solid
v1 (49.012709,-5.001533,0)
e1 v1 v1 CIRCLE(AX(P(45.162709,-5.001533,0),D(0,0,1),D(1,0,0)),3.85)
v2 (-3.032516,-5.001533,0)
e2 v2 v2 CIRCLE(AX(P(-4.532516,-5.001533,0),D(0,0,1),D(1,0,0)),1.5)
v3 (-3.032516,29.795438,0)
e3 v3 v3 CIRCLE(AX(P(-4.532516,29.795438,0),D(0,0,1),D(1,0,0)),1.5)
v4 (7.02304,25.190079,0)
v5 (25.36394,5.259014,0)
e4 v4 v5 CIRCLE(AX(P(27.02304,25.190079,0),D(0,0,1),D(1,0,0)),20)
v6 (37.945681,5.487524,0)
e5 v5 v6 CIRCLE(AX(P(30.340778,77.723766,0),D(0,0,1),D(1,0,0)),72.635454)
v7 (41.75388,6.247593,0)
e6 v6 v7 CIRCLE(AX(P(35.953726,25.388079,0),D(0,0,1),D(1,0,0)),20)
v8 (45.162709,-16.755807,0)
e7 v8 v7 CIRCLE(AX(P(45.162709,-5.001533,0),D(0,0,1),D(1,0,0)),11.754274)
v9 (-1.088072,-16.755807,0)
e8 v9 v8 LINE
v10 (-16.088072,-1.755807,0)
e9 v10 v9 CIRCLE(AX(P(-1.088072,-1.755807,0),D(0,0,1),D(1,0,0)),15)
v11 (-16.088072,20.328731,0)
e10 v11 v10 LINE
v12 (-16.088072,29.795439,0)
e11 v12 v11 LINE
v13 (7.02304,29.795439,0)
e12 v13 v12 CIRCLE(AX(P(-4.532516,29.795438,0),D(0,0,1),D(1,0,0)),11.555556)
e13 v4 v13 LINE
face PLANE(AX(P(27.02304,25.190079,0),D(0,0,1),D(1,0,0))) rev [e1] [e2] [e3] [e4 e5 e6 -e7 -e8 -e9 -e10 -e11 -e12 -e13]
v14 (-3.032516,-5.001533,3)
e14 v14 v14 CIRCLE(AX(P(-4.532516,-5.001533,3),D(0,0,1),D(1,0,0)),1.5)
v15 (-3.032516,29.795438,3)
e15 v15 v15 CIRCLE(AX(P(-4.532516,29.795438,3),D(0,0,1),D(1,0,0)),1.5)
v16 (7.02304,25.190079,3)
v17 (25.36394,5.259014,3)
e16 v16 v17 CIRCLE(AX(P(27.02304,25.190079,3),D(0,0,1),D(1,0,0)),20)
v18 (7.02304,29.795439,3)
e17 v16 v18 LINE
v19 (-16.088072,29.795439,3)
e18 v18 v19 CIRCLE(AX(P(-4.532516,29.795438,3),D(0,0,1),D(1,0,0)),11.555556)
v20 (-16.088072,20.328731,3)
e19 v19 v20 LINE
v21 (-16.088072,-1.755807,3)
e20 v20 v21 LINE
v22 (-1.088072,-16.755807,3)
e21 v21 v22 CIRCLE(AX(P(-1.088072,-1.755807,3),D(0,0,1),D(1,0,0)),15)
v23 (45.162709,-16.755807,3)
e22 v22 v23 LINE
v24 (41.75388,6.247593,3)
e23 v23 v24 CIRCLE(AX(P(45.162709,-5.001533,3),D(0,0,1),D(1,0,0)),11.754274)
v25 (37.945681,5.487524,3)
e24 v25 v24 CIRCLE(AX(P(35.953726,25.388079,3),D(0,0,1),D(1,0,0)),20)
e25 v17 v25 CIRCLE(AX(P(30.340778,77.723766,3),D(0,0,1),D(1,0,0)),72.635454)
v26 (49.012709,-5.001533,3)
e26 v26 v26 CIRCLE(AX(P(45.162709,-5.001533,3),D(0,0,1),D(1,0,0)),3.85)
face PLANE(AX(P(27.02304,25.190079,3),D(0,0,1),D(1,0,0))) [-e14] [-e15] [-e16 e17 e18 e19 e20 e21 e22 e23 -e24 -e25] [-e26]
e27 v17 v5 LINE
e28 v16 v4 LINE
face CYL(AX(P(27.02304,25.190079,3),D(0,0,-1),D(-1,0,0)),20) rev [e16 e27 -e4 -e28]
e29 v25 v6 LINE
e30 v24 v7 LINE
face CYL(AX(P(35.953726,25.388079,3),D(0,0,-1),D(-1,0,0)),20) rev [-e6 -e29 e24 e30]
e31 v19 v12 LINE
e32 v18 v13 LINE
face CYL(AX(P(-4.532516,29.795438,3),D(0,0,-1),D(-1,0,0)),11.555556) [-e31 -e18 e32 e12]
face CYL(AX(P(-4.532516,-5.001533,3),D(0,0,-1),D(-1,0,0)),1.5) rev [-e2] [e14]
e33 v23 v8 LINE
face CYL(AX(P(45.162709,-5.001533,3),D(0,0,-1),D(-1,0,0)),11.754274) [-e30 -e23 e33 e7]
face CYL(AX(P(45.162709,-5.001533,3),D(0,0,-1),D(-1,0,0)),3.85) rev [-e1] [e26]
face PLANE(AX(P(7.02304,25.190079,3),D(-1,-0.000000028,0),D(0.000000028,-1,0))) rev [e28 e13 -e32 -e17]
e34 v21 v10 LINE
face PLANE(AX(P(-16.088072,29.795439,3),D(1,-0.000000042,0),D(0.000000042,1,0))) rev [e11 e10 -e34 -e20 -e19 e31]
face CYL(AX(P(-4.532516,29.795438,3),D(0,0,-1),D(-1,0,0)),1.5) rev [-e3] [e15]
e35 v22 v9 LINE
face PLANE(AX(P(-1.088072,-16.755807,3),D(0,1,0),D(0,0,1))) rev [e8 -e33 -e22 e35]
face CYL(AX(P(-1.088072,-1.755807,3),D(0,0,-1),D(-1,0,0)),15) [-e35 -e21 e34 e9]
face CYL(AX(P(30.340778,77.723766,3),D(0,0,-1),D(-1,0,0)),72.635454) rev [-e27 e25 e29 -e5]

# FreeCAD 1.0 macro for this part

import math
import FreeCAD as App
import Part
import Sketcher

V = App.Vector
Q = App.Units.Quantity

doc = App.newDocument("Part")
body = doc.addObject("PartDesign::Body", "Body")

# Sketch on XY plane
sketch1 = body.newObject("Sketcher::SketchObject", "Sketch")
sketch1.AttachmentSupport = (doc.getObject("XY_Plane"), [""])
sketch1.MapMode = "FlatFace"
sketch1.addGeometry([
    Part.LineSegment(V(-1.088072, -16.755807, 0), V(45.162709, -16.755807, 0)),  # 0
    Part.ArcOfCircle(Part.Circle(V(45.162709, -5.001533, 0), V(0, 0, 1), 11.754274), math.radians(-90), math.radians(106.858416)),  # 1
    Part.ArcOfCircle(Part.Circle(V(35.953726, 25.388079, 0), V(0, 0, 1), 20), math.radians(-84.283993), math.radians(-73.141584)),  # 2
    Part.ArcOfCircle(Part.Circle(V(30.340778, 77.723766, 0), V(0, 0, 1), 72.635454), math.radians(-93.928872), math.radians(-83.990141)),  # 3
    Part.ArcOfCircle(Part.Circle(V(27.02304, 25.190079, 0), V(0, 0, 1), 20), math.radians(-179.999998), math.radians(-94.758439)),  # 4
    Part.LineSegment(V(7.02304, 25.190079, 0), V(7.02304, 29.795439, 0)),  # 5
    Part.ArcOfCircle(Part.Circle(V(-4.532516, 29.795438, 0), V(0, 0, 1), 11.555556), math.radians(0.000003), math.radians(179.999998)),  # 6
    Part.LineSegment(V(-16.088072, 29.795439, 0), V(-16.088072, 20.328731, 0)),  # 7
    Part.LineSegment(V(-16.088072, 20.328731, 0), V(-16.088072, -1.755807, 0)),  # 8
    Part.ArcOfCircle(Part.Circle(V(-1.088072, -1.755807, 0), V(0, 0, 1), 15), math.radians(-180), math.radians(-90)),  # 9
    Part.Circle(V(-4.532516, -5.001533, 0), V(0, 0, 1), 1.5),  # 10
    Part.Circle(V(45.162709, -5.001533, 0), V(0, 0, 1), 3.85),  # 11
    Part.Circle(V(-4.532516, 29.795438, 0), V(0, 0, 1), 1.5),  # 12
], False)
sketch1.addConstraint([
    Sketcher.Constraint("Coincident", 0, 2, 1, 1),
    Sketcher.Constraint("Coincident", 1, 2, 2, 2),
    Sketcher.Constraint("Coincident", 2, 1, 3, 2),
    Sketcher.Constraint("Coincident", 3, 1, 4, 2),
    Sketcher.Constraint("Coincident", 4, 1, 5, 1),
    Sketcher.Constraint("Coincident", 5, 2, 6, 1),
    Sketcher.Constraint("Coincident", 6, 2, 7, 1),
    Sketcher.Constraint("Coincident", 7, 2, 8, 1),
    Sketcher.Constraint("Coincident", 8, 2, 9, 1),
    Sketcher.Constraint("Coincident", 9, 2, 0, 1),
    Sketcher.Constraint("Horizontal", 0),
    Sketcher.Constraint("Vertical", 5),
    Sketcher.Constraint("Vertical", 7),
    Sketcher.Constraint("Vertical", 8),
    Sketcher.Constraint("Coincident", 11, 3, 1, 3),
    Sketcher.Constraint("Coincident", 12, 3, 6, 3),
    Sketcher.Constraint("Diameter", 10, Q("3 mm")),
    Sketcher.Constraint("Diameter", 12, Q("3 mm")),
    Sketcher.Constraint("Radius", 2, Q("20 mm")),
    Sketcher.Constraint("Radius", 4, Q("20 mm")),
    Sketcher.Constraint("Radius", 9, Q("15 mm")),
    Sketcher.Constraint("Diameter", 11, Q("7.7 mm")),
    Sketcher.Constraint("DistanceX", 8, 2, 9, 2, Q("15 mm")),
    Sketcher.Constraint("DistanceY", 9, 2, 8, 2, Q("15 mm")),
    Sketcher.Constraint("Radius", 1, Q("11.754274 mm")),
    Sketcher.Constraint("Radius", 3, Q("72.635454 mm")),
    Sketcher.Constraint("Radius", 6, Q("11.555556 mm")),
    Sketcher.Constraint("DistanceY", 4, 3, 2, 3, Q("0.198 mm")),
    Sketcher.Constraint("DistanceX", 0, 1, 0, 2, Q("46.250781 mm")),
    Sketcher.Constraint("DistanceY", 5, 1, 5, 2, Q("4.60536 mm")),
    Sketcher.Constraint("DistanceY", 7, 2, 7, 1, Q("9.466708 mm")),
    Sketcher.Constraint("DistanceY", 1, 3, 3, 3, Q("82.725299 mm")),
    Sketcher.Constraint("DistanceX", 9, 3, 2, 3, Q("37.041798 mm")),
    Sketcher.Constraint("DistanceY", 0, 2, 1, 2, Q("23.0034 mm")),
    Sketcher.Constraint("DistanceX", 2, 1, 1, 2, Q("3.808199 mm")),
    Sketcher.Constraint("DistanceX", 3, 1, 4, 3, Q("1.6591 mm")),
    Sketcher.Constraint("DistanceY", 8, 2, 8, 1, Q("22.084538 mm")),
    Sketcher.Constraint("DistanceX", -1, 1, 1, 3, Q("45.162709 mm")),
    Sketcher.Constraint("DistanceY", -1, 1, 2, 3, Q("25.388079 mm")),
    Sketcher.Constraint("DistanceY", -1, 1, 6, 3, Q("29.795438 mm")),
    Sketcher.Constraint("DistanceY", -1, 1, 4, 1, Q("25.190079 mm")),
    Sketcher.Constraint("DistanceY", 10, 3, 6, 3, Q("34.796972 mm")),
    Sketcher.Constraint("DistanceX", 10, 3, 2, 3, Q("40.486242 mm")),
])
pad1 = body.newObject("PartDesign::Pad", "Pad")
pad1.Profile = sketch1
pad1.Length = 3

doc.recompute()
